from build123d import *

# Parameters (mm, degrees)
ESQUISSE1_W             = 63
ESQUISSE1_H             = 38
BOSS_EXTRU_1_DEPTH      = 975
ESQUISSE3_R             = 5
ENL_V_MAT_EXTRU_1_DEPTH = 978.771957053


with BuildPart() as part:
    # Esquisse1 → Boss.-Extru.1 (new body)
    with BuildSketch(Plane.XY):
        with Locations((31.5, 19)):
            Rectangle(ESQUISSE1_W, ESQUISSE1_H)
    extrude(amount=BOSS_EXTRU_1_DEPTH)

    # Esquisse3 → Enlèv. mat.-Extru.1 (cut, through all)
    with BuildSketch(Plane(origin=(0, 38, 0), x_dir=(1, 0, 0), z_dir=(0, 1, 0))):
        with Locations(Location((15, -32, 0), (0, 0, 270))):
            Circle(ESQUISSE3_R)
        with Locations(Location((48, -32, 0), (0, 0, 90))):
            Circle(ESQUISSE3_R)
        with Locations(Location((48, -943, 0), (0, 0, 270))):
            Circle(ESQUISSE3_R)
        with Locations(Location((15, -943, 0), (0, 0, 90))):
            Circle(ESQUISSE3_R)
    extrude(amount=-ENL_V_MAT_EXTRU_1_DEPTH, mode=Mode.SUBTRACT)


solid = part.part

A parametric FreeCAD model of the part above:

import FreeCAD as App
import Part
import Sketcher
Q = App.Units.Quantity

doc = App.newDocument("Part")
body = doc.addObject("PartDesign::Body", "Body")

# Sketch on XY plane
sketch1 = body.newObject("Sketcher::SketchObject", "Sketch")
sketch1.AttachmentSupport = (doc.getObject("XY_Plane"), [""])
sketch1.MapMode = "FlatFace"
sketch1.addGeometry([
    Part.LineSegment(App.Vector(0, 38, 0), App.Vector(0, 0, 0)),
    Part.LineSegment(App.Vector(0, 0, 0), App.Vector(63, 0, 0)),
    Part.LineSegment(App.Vector(63, 0, 0), App.Vector(63, 38, 0)),
    Part.LineSegment(App.Vector(63, 38, 0), App.Vector(0, 38, 0)),
], False)
sketch1.addConstraint([
    Sketcher.Constraint("Coincident", 0, 2, 1, 1),
    Sketcher.Constraint("Coincident", 1, 2, 2, 1),
    Sketcher.Constraint("Coincident", 2, 2, 3, 1),
    Sketcher.Constraint("Coincident", 3, 2, 0, 1),
    Sketcher.Constraint("Vertical", 0),
    Sketcher.Constraint("Horizontal", 1),
    Sketcher.Constraint("Vertical", 2),
    Sketcher.Constraint("Horizontal", 3),
    Sketcher.Constraint("Coincident", 0, 2, -1, 1),
    Sketcher.Constraint("DistanceX", 1, 1, 1, 2, Q("63 mm")),
    Sketcher.Constraint("DistanceY", 0, 2, 0, 1, Q("38 mm")),
])
pad1 = body.newObject("PartDesign::Pad", "Pad")
pad1.Profile = sketch1
pad1.Length = 975

# Sketch on XZ plane
sketch2 = body.newObject("Sketcher::SketchObject", "Sketch001")
sketch2.AttachmentSupport = (doc.getObject("XZ_Plane"), [""])
sketch2.MapMode = "FlatFace"
sketch2.AttachmentOffset = App.Placement(App.Vector(0, 0, -38), App.Rotation())
sketch2.addGeometry([
    Part.Circle(App.Vector(15, 32, 0), App.Vector(0, 0, 1), 5),
    Part.Circle(App.Vector(48, 32, 0), App.Vector(0, 0, 1), 5),
    Part.Circle(App.Vector(48, 943, 0), App.Vector(0, 0, 1), 5),
    Part.Circle(App.Vector(15, 943, 0), App.Vector(0, 0, 1), 5),
], False)
sketch2.addConstraint([
    Sketcher.Constraint("Equal", 0, 1),
    Sketcher.Constraint("Equal", 1, 2),
    Sketcher.Constraint("Equal", 2, 3),
    Sketcher.Constraint("Horizontal", 0, 3, 1, 3),
    Sketcher.Constraint("Horizontal", 2, 3, 3, 3),
    Sketcher.Constraint("Vertical", 1, 3, 2, 3),
    Sketcher.Constraint("Vertical", 0, 3, 3, 3),
    Sketcher.Constraint("Diameter", 0, Q("10 mm")),
    Sketcher.Constraint("DistanceX", -1, 1, 0, 3, Q("15 mm")),
    Sketcher.Constraint("DistanceY", -1, 1, 0, 3, Q("32 mm")),
    Sketcher.Constraint("DistanceX", -1, 1, 1, 3, Q("48 mm")),
    Sketcher.Constraint("DistanceY", -1, 1, 2, 3, Q("943 mm")),
])
pocket1 = body.newObject("PartDesign::Pocket", "Pocket")
pocket1.Profile = sketch2
pocket1.Type = "ThroughAll"
pocket1.Reversed = True

doc.recompute()
